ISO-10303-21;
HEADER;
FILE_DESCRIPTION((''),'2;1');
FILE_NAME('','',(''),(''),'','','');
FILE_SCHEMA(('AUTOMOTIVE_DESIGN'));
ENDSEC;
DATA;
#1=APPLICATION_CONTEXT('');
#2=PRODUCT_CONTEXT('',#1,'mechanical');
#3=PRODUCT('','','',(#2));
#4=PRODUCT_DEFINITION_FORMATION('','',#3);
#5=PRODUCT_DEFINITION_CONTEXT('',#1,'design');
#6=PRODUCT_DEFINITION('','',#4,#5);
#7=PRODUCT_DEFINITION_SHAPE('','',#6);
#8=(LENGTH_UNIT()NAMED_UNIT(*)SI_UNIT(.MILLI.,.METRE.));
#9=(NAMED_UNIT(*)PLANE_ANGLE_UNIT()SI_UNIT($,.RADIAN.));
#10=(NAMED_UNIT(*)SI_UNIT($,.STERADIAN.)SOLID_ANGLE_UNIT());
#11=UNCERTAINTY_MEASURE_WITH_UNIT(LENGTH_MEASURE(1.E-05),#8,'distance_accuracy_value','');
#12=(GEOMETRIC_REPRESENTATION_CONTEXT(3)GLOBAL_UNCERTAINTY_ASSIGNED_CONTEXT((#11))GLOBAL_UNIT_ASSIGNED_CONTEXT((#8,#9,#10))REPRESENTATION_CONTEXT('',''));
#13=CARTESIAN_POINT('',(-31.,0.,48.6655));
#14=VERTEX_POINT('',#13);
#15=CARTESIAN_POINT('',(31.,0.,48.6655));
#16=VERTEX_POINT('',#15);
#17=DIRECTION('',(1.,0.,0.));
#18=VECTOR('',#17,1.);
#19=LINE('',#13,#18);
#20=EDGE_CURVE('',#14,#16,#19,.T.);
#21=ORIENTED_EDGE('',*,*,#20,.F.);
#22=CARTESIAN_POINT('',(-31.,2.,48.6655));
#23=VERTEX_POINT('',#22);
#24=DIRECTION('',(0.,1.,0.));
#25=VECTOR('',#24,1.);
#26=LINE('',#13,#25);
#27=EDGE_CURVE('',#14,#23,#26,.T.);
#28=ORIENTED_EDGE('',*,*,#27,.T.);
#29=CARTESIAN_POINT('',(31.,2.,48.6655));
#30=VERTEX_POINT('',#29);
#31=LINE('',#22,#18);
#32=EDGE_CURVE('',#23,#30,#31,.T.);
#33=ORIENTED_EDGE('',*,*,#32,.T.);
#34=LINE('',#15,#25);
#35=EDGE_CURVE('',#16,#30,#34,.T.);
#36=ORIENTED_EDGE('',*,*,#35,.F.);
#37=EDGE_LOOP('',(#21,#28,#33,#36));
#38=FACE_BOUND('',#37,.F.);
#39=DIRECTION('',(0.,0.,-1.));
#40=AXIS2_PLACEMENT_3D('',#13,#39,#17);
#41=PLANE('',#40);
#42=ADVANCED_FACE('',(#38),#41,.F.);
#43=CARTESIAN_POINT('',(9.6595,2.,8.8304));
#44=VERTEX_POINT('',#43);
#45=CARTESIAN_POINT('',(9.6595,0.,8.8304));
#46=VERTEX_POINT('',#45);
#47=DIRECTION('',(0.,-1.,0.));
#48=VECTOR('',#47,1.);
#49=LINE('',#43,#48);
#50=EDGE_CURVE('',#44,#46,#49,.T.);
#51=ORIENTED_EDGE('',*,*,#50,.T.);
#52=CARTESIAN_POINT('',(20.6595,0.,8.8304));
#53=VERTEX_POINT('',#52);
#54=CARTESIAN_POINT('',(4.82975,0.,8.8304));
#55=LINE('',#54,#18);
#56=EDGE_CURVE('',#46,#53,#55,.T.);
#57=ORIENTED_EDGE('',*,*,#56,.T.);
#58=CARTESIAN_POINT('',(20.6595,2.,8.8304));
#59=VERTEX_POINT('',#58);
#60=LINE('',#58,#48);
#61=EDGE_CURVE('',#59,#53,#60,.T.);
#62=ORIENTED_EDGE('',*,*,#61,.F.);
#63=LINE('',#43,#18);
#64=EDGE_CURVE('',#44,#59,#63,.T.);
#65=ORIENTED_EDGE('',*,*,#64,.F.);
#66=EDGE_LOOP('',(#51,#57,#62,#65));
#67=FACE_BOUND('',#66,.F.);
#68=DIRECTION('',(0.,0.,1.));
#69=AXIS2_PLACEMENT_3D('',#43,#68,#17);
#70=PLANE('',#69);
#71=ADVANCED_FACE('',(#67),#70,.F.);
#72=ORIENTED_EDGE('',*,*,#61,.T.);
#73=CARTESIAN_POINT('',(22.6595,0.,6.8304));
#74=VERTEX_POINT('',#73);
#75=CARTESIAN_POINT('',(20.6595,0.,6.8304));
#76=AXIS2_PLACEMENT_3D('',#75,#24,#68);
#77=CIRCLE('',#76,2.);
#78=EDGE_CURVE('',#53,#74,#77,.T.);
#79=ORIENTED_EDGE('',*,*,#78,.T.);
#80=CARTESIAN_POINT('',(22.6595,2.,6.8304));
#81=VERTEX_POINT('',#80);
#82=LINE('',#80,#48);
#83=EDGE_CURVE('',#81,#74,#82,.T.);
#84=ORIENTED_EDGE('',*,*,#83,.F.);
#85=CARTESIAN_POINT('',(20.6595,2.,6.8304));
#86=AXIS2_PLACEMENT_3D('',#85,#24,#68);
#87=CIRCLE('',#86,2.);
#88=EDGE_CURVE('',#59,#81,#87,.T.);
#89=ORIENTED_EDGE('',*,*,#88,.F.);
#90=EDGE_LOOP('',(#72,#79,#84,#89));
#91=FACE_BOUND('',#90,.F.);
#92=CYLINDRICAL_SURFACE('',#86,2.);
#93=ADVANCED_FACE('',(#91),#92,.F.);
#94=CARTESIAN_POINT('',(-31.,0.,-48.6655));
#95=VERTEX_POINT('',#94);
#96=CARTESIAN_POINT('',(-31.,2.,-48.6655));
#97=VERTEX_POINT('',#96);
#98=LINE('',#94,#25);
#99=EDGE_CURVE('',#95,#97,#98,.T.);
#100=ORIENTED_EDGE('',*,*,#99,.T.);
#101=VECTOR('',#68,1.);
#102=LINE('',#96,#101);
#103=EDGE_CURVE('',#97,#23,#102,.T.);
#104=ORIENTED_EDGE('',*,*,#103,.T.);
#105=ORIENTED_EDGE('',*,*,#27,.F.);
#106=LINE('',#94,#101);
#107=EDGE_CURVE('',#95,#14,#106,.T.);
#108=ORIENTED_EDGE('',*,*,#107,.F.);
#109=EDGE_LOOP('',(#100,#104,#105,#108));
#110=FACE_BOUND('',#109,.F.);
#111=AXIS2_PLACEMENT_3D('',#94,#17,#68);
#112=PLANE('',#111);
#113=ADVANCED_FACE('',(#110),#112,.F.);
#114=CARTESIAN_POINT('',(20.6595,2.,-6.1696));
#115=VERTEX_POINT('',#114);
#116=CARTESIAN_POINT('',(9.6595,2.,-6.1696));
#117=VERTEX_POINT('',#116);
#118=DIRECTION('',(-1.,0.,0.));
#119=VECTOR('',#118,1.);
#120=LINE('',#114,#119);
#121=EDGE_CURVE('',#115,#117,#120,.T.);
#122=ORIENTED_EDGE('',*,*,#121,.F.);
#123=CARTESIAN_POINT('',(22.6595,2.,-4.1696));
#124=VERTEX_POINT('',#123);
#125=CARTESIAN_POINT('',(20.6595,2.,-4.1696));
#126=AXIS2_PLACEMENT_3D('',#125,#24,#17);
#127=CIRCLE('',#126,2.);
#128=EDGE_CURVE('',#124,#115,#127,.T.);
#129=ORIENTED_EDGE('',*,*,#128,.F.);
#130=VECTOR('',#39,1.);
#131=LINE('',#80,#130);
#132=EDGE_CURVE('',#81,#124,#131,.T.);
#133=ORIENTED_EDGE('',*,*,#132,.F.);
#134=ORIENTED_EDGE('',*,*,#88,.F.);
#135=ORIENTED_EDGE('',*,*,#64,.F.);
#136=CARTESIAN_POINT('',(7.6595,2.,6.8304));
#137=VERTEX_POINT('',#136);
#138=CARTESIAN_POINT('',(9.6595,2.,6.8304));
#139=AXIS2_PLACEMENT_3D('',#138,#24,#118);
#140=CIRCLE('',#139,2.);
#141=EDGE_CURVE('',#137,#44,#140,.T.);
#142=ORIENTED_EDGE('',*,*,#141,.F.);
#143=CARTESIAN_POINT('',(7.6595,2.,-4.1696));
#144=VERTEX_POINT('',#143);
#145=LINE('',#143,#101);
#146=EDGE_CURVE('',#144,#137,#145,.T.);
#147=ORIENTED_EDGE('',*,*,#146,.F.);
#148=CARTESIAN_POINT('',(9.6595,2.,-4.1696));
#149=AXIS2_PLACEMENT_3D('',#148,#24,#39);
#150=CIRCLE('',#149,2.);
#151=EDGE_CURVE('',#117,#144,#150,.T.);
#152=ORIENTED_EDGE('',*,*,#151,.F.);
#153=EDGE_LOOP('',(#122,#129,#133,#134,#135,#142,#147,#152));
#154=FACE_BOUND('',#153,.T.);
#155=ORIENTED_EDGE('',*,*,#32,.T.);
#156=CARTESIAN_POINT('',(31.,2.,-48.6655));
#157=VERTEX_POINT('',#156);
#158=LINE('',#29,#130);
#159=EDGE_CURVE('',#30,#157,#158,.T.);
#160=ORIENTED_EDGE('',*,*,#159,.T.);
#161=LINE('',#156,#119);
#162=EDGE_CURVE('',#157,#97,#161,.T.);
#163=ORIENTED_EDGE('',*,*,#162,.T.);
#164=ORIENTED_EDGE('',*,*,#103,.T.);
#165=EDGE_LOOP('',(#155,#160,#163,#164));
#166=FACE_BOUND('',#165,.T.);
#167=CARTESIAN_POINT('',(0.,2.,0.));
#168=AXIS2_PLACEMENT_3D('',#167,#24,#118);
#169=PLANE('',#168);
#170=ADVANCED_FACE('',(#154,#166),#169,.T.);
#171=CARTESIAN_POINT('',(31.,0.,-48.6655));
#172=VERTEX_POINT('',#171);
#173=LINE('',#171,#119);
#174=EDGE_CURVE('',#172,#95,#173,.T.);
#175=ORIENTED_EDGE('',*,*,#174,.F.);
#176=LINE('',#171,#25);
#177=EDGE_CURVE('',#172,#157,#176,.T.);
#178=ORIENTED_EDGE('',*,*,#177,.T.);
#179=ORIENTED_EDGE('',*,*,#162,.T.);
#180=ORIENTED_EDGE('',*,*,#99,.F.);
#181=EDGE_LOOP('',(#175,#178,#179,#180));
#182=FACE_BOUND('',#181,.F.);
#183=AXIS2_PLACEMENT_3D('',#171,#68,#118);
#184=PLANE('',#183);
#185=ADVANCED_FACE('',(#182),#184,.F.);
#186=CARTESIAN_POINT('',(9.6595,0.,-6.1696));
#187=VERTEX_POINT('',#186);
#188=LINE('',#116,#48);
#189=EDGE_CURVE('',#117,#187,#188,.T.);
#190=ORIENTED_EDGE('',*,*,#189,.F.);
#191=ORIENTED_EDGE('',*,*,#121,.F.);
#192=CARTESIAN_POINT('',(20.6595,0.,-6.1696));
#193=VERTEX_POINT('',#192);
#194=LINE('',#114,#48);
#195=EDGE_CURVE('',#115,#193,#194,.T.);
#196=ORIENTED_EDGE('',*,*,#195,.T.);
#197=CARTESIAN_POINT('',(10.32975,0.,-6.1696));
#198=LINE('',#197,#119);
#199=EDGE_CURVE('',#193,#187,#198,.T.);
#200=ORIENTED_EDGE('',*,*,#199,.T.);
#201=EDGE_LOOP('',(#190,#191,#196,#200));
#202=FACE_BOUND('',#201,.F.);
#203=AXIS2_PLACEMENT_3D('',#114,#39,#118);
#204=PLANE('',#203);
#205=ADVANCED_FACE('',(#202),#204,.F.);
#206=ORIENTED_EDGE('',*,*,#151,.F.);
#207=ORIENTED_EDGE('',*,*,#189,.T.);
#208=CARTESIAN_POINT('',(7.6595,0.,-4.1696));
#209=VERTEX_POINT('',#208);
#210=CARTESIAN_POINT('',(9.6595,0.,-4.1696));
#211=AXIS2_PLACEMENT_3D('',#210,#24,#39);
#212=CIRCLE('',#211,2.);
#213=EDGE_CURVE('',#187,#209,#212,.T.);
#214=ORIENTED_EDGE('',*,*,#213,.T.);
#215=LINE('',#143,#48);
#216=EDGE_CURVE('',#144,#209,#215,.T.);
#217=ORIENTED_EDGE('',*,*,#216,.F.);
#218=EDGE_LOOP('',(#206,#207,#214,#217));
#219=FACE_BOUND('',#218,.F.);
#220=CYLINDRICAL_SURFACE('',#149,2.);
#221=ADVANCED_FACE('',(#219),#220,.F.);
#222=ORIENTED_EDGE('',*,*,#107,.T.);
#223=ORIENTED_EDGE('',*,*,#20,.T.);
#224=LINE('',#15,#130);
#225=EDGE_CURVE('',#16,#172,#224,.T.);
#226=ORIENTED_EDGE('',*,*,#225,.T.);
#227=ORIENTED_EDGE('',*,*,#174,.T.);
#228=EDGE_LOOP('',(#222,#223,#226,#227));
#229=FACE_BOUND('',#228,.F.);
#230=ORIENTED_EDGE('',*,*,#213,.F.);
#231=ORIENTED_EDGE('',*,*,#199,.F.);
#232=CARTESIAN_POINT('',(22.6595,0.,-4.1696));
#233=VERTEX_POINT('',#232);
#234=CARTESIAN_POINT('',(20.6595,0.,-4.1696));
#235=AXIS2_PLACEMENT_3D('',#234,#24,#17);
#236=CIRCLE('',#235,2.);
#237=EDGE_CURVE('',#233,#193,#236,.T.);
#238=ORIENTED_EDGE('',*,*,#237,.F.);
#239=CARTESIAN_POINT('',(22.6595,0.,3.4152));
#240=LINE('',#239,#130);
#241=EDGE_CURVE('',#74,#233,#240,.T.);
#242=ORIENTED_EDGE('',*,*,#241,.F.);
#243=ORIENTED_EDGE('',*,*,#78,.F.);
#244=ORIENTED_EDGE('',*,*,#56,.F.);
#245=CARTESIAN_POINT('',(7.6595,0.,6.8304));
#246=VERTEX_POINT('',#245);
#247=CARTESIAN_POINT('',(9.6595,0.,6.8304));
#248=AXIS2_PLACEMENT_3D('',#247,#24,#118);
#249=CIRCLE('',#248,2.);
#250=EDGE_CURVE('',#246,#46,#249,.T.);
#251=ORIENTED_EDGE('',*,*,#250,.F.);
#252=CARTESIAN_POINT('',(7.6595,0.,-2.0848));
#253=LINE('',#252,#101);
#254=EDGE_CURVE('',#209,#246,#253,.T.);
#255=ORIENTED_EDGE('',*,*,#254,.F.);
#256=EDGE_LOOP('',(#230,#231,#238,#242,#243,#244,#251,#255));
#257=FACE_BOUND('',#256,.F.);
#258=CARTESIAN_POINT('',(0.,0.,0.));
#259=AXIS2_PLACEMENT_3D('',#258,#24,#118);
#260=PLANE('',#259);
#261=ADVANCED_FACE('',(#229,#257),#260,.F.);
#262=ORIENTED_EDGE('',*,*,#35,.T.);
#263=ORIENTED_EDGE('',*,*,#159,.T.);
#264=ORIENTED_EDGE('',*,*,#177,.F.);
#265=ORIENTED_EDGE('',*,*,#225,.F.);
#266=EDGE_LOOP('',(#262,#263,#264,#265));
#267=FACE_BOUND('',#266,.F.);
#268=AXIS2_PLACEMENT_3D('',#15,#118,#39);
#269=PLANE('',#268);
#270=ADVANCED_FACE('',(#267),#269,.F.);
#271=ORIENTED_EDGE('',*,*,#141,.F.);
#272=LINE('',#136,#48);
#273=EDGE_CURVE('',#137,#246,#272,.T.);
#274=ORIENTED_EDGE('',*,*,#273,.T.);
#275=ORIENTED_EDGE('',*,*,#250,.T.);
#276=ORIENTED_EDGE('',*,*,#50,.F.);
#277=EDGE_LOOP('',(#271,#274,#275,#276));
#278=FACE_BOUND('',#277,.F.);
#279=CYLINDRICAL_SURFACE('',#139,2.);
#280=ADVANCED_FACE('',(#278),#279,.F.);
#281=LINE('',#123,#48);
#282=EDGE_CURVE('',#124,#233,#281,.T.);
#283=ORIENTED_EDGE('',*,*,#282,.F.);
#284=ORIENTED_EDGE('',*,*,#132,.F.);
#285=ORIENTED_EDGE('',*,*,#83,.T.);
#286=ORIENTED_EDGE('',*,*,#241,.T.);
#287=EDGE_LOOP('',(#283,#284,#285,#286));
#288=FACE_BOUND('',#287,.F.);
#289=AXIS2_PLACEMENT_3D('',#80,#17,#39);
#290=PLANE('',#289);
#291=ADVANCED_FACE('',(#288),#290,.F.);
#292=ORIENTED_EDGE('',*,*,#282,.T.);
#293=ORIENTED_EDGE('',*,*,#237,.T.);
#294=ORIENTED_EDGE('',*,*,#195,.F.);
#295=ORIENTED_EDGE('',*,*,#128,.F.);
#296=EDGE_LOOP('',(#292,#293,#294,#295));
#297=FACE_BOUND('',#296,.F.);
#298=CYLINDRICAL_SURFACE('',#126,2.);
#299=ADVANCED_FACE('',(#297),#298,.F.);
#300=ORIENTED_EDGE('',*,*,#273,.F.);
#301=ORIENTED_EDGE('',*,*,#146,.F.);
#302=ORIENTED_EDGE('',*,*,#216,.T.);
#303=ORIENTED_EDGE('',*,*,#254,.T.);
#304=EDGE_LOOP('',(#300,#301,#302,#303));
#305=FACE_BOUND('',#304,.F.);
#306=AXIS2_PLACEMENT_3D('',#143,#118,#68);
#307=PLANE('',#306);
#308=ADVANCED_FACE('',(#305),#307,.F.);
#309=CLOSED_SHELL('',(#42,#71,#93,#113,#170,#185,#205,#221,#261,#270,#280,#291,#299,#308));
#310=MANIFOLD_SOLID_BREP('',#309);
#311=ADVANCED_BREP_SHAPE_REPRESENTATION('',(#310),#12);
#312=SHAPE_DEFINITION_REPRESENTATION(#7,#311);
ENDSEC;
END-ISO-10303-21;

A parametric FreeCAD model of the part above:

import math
import FreeCAD as App
import Part
import Sketcher
from FreeCAD import Vector
Q = App.Units.Quantity

doc = App.newDocument("Part")
body = doc.addObject("PartDesign::Body", "Body")

# Sketch on XZ plane
sketch1 = body.newObject("Sketcher::SketchObject", "Sketch")
sketch1.AttachmentSupport = (doc.getObject("XZ_Plane"), [""])
sketch1.MapMode = "FlatFace"
sketch1.addGeometry(Part.LineSegment(Vector(-31, -49, 0), Vector(-31, 49, 0)), False)
sketch1.addGeometry(Part.LineSegment(Vector(-31, 49, 0), Vector(31, 49, 0)), False)
sketch1.addGeometry(Part.LineSegment(Vector(31, 49, 0), Vector(31, -49, 0)), False)
sketch1.addGeometry(Part.LineSegment(Vector(31, -49, 0), Vector(-31, -49, 0)), False)
sketch1.addConstraint(Sketcher.Constraint("Coincident", 0, 2, 1, 1))
sketch1.addConstraint(Sketcher.Constraint("Coincident", 1, 2, 2, 1))
sketch1.addConstraint(Sketcher.Constraint("Coincident", 2, 2, 3, 1))
sketch1.addConstraint(Sketcher.Constraint("Coincident", 3, 2, 0, 1))
sketch1.addConstraint(Sketcher.Constraint("Vertical", 0))
sketch1.addConstraint(Sketcher.Constraint("Horizontal", 1))
sketch1.addConstraint(Sketcher.Constraint("Vertical", 2))
sketch1.addConstraint(Sketcher.Constraint("Horizontal", 3))
sketch1.addConstraint(Sketcher.Constraint("Symmetric", 0, 2, 2, 2, -1, 1))
sketch1.addConstraint(Sketcher.Constraint("DistanceX", 1, 1, 1, 2, Q("62 mm")))
sketch1.addConstraint(Sketcher.Constraint("DistanceY", 0, 1, 0, 2, Q("97.331 mm")))
pad1 = body.newObject("PartDesign::Pad", "Pad")
pad1.Profile = sketch1
pad1.Length = 2
pad1.Reversed = True

# Sketch on XZ plane
sketch2 = body.newObject("Sketcher::SketchObject", "Sketch001")
sketch2.AttachmentSupport = (doc.getObject("XZ_Plane"), [""])
sketch2.MapMode = "FlatFace"
sketch2.AttachmentOffset = App.Placement(Vector(0, 0, -2), App.Rotation())
sketch2.addGeometry(Part.ArcOfCircle(Part.Circle(Vector(9.7, 6.8, 0), Vector(0, 0, 1), 2), math.radians(90), math.radians(180)), False)
sketch2.addGeometry(Part.LineSegment(Vector(9.7, 8.8, 0), Vector(20.7, 8.8, 0)), False)
sketch2.addGeometry(Part.ArcOfCircle(Part.Circle(Vector(20.7, 6.8, 0), Vector(0, 0, 1), 2), math.radians(0), math.radians(90)), False)
sketch2.addGeometry(Part.LineSegment(Vector(22.7, 6.8, 0), Vector(22.7, -4.2, 0)), False)
sketch2.addGeometry(Part.ArcOfCircle(Part.Circle(Vector(20.7, -4.2, 0), Vector(0, 0, 1), 2), math.radians(-90), math.radians(0)), False)
sketch2.addGeometry(Part.LineSegment(Vector(20.7, -6.2, 0), Vector(9.7, -6.2, 0)), False)
sketch2.addGeometry(Part.ArcOfCircle(Part.Circle(Vector(9.7, -4.2, 0), Vector(0, 0, 1), 2), math.radians(180), math.radians(270)), False)
sketch2.addGeometry(Part.LineSegment(Vector(7.7, -4.2, 0), Vector(7.7, 6.8, 0)), False)
sketch2.addConstraint(Sketcher.Constraint("Tangent", 0, 1, 1, 1))
sketch2.addConstraint(Sketcher.Constraint("Tangent", 1, 2, 2, 2))
sketch2.addConstraint(Sketcher.Constraint("Tangent", 2, 1, 3, 1))
sketch2.addConstraint(Sketcher.Constraint("Tangent", 3, 2, 4, 2))
sketch2.addConstraint(Sketcher.Constraint("Tangent", 4, 1, 5, 1))
sketch2.addConstraint(Sketcher.Constraint("Tangent", 5, 2, 6, 2))
sketch2.addConstraint(Sketcher.Constraint("Tangent", 6, 1, 7, 1))
sketch2.addConstraint(Sketcher.Constraint("Tangent", 7, 2, 0, 2))
sketch2.addConstraint(Sketcher.Constraint("Horizontal", 1))
sketch2.addConstraint(Sketcher.Constraint("Vertical", 3))
sketch2.addConstraint(Sketcher.Constraint("Horizontal", 5))
sketch2.addConstraint(Sketcher.Constraint("Vertical", 7))
sketch2.addConstraint(Sketcher.Constraint("Equal", 0, 2))
sketch2.addConstraint(Sketcher.Constraint("Equal", 2, 4))
sketch2.addConstraint(Sketcher.Constraint("Equal", 4, 6))
sketch2.addConstraint(Sketcher.Constraint("Equal", 5, 3))
sketch2.addConstraint(Sketcher.Constraint("Radius", 0, Q("2 mm")))
sketch2.addConstraint(Sketcher.Constraint("DistanceX", 1, 1, 1, 2, Q("11 mm")))
sketch2.addConstraint(Sketcher.Constraint("DistanceX", -1, 1, 0, 3, Q("9.6595 mm")))
sketch2.addConstraint(Sketcher.Constraint("DistanceY", -1, 1, 0, 3, Q("6.8304 mm")))
pocket1 = body.newObject("PartDesign::Pocket", "Pocket")
pocket1.Profile = sketch2
pocket1.Length = 10
pocket1.Reversed = True

doc.recompute()
